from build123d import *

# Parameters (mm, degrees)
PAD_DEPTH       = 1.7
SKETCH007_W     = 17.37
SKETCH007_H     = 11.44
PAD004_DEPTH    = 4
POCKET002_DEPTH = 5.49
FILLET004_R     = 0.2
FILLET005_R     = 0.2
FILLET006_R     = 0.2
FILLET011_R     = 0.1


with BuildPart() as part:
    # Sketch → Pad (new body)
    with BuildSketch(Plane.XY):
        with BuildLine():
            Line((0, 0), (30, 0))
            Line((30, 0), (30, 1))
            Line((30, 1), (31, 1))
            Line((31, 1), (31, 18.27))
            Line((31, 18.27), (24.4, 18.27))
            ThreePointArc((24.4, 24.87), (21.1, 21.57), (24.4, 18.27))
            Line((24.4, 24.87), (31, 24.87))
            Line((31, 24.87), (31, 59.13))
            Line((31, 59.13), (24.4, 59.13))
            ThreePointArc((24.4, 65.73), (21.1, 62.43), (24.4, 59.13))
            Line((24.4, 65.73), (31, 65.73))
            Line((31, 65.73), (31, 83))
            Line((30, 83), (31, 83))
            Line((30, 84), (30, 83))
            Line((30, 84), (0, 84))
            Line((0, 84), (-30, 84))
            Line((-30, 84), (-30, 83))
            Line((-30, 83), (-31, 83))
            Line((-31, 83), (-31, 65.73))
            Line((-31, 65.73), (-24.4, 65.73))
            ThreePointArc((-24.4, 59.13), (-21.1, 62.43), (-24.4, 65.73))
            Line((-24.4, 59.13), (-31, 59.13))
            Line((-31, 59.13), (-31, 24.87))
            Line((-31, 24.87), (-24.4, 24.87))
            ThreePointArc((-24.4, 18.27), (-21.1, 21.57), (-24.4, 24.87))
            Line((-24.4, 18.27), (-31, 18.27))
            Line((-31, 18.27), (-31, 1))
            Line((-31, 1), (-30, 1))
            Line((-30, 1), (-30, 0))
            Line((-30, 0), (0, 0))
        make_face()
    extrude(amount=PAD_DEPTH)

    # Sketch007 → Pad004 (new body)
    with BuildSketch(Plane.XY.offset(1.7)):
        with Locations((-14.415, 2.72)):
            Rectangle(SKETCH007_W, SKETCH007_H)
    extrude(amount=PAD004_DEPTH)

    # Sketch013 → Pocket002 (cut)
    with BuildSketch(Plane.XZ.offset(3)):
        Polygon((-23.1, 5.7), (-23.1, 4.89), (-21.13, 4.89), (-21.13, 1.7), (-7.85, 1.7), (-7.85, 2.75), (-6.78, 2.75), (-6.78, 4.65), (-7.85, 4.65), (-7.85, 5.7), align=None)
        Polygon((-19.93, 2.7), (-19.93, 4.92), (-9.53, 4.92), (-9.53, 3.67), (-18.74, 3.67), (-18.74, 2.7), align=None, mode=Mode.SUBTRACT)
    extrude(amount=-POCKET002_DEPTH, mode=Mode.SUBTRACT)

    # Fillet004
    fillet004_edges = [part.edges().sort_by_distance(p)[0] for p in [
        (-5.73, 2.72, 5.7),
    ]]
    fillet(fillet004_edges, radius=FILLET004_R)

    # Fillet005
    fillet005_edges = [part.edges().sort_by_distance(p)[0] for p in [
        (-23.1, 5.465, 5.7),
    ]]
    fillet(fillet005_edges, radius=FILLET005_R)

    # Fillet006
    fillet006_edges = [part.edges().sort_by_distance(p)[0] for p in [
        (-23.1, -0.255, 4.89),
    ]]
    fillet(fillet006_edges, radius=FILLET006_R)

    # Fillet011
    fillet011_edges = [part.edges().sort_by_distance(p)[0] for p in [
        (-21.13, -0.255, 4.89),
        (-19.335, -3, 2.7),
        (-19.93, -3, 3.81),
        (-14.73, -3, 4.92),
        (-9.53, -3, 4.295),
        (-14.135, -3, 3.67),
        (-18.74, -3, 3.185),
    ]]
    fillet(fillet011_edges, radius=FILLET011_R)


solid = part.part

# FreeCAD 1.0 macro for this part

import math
import FreeCAD as App
import Part
import Sketcher

V = App.Vector
Q = App.Units.Quantity


def edges_at(feature, points):
    """Names of the edges that pass closest to the given points."""
    edges = feature.Shape.Edges
    near = lambda p: min(range(len(edges)), key=lambda i: edges[i].distToShape(Part.Vertex(*p))[0])
    return sorted({f"Edge{near(p) + 1}" for p in points})


def add_polygon(sketch, points):
    """Adds a closed chain of lines whose ends are joined by coincident constraints."""
    first, n = sketch.GeometryCount, len(points)
    for a, b in zip(points, points[1:] + points[:1]):
        sketch.addGeometry(Part.LineSegment(App.Vector(*a, 0), App.Vector(*b, 0)), False)
    for i in range(n):
        sketch.addConstraint(Sketcher.Constraint("Coincident", first + i, 2, first + (i + 1) % n, 1))

doc = App.newDocument("Part")
body = doc.addObject("PartDesign::Body", "Body")

# Sketch on XY plane
sketch1 = doc.addObject("Sketcher::SketchObject", "Sketch")
body.addObject(sketch1)
sketch1.AttachmentSupport = (doc.XY_Plane, [""])
sketch1.MapMode = "FlatFace"
sketch1.addGeometry([
    Part.LineSegment(V(30, 0, 0), V(30, 1, 0)),  # 0
    Part.LineSegment(V(30, 1, 0), V(31, 1, 0)),  # 1
    Part.LineSegment(V(31, 1, 0), V(31, 18.27, 0)),  # 2
    Part.LineSegment(V(31, 18.27, 0), V(24.4, 18.27, 0)),  # 3
    Part.ArcOfCircle(Part.Circle(V(24.4, 21.57, 0), V(0, 0, 1), 3.3), math.radians(90), math.radians(270)),  # 4
    Part.LineSegment(V(24.4, 24.87, 0), V(31, 24.87, 0)),  # 5
    Part.LineSegment(V(31, 24.87, 0), V(31, 59.13, 0)),  # 6
    Part.LineSegment(V(31, 59.13, 0), V(24.4, 59.13, 0)),  # 7
    Part.ArcOfCircle(Part.Circle(V(24.4, 62.43, 0), V(0, 0, 1), 3.3), math.radians(90), math.radians(270)),  # 8
    Part.LineSegment(V(24.4, 65.73, 0), V(31, 65.73, 0)),  # 9
    Part.LineSegment(V(31, 65.73, 0), V(31, 83, 0)),  # 10
    Part.LineSegment(V(31, 83, 0), V(30, 83, 0)),  # 11
    Part.LineSegment(V(30, 83, 0), V(30, 84, 0)),  # 12
    Part.LineSegment(V(30, 84, 0), V(-30, 84, 0)),  # 13
    Part.LineSegment(V(-30, 84, 0), V(-30, 83, 0)),  # 14
    Part.LineSegment(V(-30, 83, 0), V(-31, 83, 0)),  # 15
    Part.LineSegment(V(-31, 83, 0), V(-31, 65.73, 0)),  # 16
    Part.LineSegment(V(-31, 65.73, 0), V(-24.4, 65.73, 0)),  # 17
    Part.ArcOfCircle(Part.Circle(V(-24.4, 62.43, 0), V(0, 0, 1), 3.3), math.radians(-90), math.radians(90)),  # 18
    Part.LineSegment(V(-24.4, 59.13, 0), V(-31, 59.13, 0)),  # 19
    Part.LineSegment(V(-31, 59.13, 0), V(-31, 24.87, 0)),  # 20
    Part.LineSegment(V(-31, 24.87, 0), V(-24.4, 24.87, 0)),  # 21
    Part.ArcOfCircle(Part.Circle(V(-24.4, 21.57, 0), V(0, 0, 1), 3.3), math.radians(-90), math.radians(90)),  # 22
    Part.LineSegment(V(-24.4, 18.27, 0), V(-31, 18.27, 0)),  # 23
    Part.LineSegment(V(-31, 18.27, 0), V(-31, 1, 0)),  # 24
    Part.LineSegment(V(-31, 1, 0), V(-30, 1, 0)),  # 25
    Part.LineSegment(V(-30, 1, 0), V(-30, 0, 0)),  # 26
    Part.LineSegment(V(-30, 0, 0), V(30, 0, 0)),  # 27
], False)
sketch1.addConstraint([
    Sketcher.Constraint("Coincident", 0, 2, 1, 1),
    Sketcher.Constraint("Coincident", 1, 2, 2, 1),
    Sketcher.Constraint("Coincident", 2, 2, 3, 1),
    Sketcher.Constraint("Tangent", 3, 2, 4, 2),
    Sketcher.Constraint("Tangent", 4, 1, 5, 1),
    Sketcher.Constraint("Coincident", 5, 2, 6, 1),
    Sketcher.Constraint("Coincident", 6, 2, 7, 1),
    Sketcher.Constraint("Tangent", 7, 2, 8, 2),
    Sketcher.Constraint("Tangent", 8, 1, 9, 1),
    Sketcher.Constraint("Coincident", 9, 2, 10, 1),
    Sketcher.Constraint("Coincident", 10, 2, 11, 1),
    Sketcher.Constraint("Coincident", 11, 2, 12, 1),
    Sketcher.Constraint("Coincident", 12, 2, 13, 1),
    Sketcher.Constraint("Coincident", 13, 2, 14, 1),
    Sketcher.Constraint("Coincident", 14, 2, 15, 1),
    Sketcher.Constraint("Coincident", 15, 2, 16, 1),
    Sketcher.Constraint("Coincident", 16, 2, 17, 1),
    Sketcher.Constraint("Tangent", 17, 2, 18, 2),
    Sketcher.Constraint("Tangent", 18, 1, 19, 1),
    Sketcher.Constraint("Coincident", 19, 2, 20, 1),
    Sketcher.Constraint("Coincident", 20, 2, 21, 1),
    Sketcher.Constraint("Tangent", 21, 2, 22, 2),
    Sketcher.Constraint("Tangent", 22, 1, 23, 1),
    Sketcher.Constraint("Coincident", 23, 2, 24, 1),
    Sketcher.Constraint("Coincident", 24, 2, 25, 1),
    Sketcher.Constraint("Coincident", 25, 2, 26, 1),
    Sketcher.Constraint("Coincident", 26, 2, 27, 1),
    Sketcher.Constraint("Coincident", 27, 2, 0, 1),
    Sketcher.Constraint("Vertical", 0),
    Sketcher.Constraint("Horizontal", 1),
    Sketcher.Constraint("Vertical", 2),
    Sketcher.Constraint("Horizontal", 3),
    Sketcher.Constraint("Horizontal", 5),
    Sketcher.Constraint("Vertical", 6),
    Sketcher.Constraint("Horizontal", 7),
    Sketcher.Constraint("Horizontal", 9),
    Sketcher.Constraint("Vertical", 10),
    Sketcher.Constraint("Horizontal", 11),
    Sketcher.Constraint("Vertical", 12),
    Sketcher.Constraint("Horizontal", 13),
    Sketcher.Constraint("Vertical", 14),
    Sketcher.Constraint("Horizontal", 15),
    Sketcher.Constraint("Vertical", 16),
    Sketcher.Constraint("Horizontal", 17),
    Sketcher.Constraint("Horizontal", 19),
    Sketcher.Constraint("Vertical", 20),
    Sketcher.Constraint("Horizontal", 21),
    Sketcher.Constraint("Horizontal", 23),
    Sketcher.Constraint("Vertical", 24),
    Sketcher.Constraint("Horizontal", 25),
    Sketcher.Constraint("Vertical", 26),
    Sketcher.Constraint("Horizontal", 27),
    Sketcher.Constraint("Equal", 4, 8),
    Sketcher.Constraint("Equal", 8, 18),
    Sketcher.Constraint("Equal", 18, 22),
    Sketcher.Constraint("Symmetric", 26, 2, 27, 2, -1, 1),
    Sketcher.Constraint("Symmetric", 8, 3, 18, 3, -2),
    Sketcher.Constraint("Symmetric", 4, 3, 22, 3, -2),
    Sketcher.Constraint("Symmetric", 11, 2, 14, 2, -2),
    Sketcher.Constraint("Symmetric", 1, 2, 24, 2, -2),
    Sketcher.Constraint("Vertical", 4, 3, 8, 3),
    Sketcher.Constraint("Vertical", 2, 2, 5, 2),
    Sketcher.Constraint("Vertical", 6, 2, 9, 2),
    Sketcher.Constraint("Vertical", 0, 2, 11, 2),
    Sketcher.Constraint("Vertical", 16, 2, 19, 2),
    Sketcher.Constraint("Vertical", 20, 2, 23, 2),
    Sketcher.Constraint("Equal", 25, 0),
    Sketcher.Constraint("Equal", 2, 10),
    Sketcher.Constraint("Equal", 0, 12),
    Sketcher.Constraint("Radius", 4, Q("3.3 mm")),
    Sketcher.Constraint("DistanceX", 1, 1, 1, 2, Q("1 mm")),
    Sketcher.Constraint("DistanceX", 13, 2, 13, 1, Q("60 mm")),
    Sketcher.Constraint("DistanceX", 3, 2, 3, 1, Q("6.6 mm")),
    Sketcher.Constraint("DistanceY", -1, 1, 10, 2, Q("83 mm")),
    Sketcher.Constraint("DistanceY", 2, 1, 2, 2, Q("17.27 mm")),
])
pad1 = doc.addObject("PartDesign::Pad", "Pad")
body.addObject(pad1)
pad1.Profile = sketch1
pad1.Length = 1.7

# Sketch on XY plane
sketch2 = doc.addObject("Sketcher::SketchObject", "Sketch001")
body.addObject(sketch2)
sketch2.AttachmentSupport = (doc.XY_Plane, [""])
sketch2.MapMode = "FlatFace"
sketch2.AttachmentOffset = App.Placement(V(0, 0, 1.7), App.Rotation())
add_polygon(sketch2, [(-23.1, 8.44), (-23.1, -3), (-5.73, -3), (-5.73, 8.44)])  # lines 0-3
sketch2.addConstraint([
    Sketcher.Constraint("Vertical", 0),
    Sketcher.Constraint("Horizontal", 1),
    Sketcher.Constraint("Vertical", 2),
    Sketcher.Constraint("Horizontal", 3),
    Sketcher.Constraint("DistanceY", 0, 2, -1, 1, Q("3 mm")),
    Sketcher.Constraint("DistanceX", 1, 1, 1, 2, Q("17.37 mm")),
    Sketcher.Constraint("DistanceY", 0, 2, 0, 1, Q("11.44 mm")),
    Sketcher.Constraint("DistanceX", 0, 2, -1, 1, Q("23.1 mm")),
])
pad2 = doc.addObject("PartDesign::Pad", "Pad001")
body.addObject(pad2)
pad2.Profile = sketch2
pad2.Length = 4

# Sketch on XZ plane
sketch3 = doc.addObject("Sketcher::SketchObject", "Sketch002")
body.addObject(sketch3)
sketch3.AttachmentSupport = (doc.XZ_Plane, [""])
sketch3.MapMode = "FlatFace"
sketch3.AttachmentOffset = App.Placement(V(0, 0, 3), App.Rotation())
add_polygon(sketch3, [(-23.1, 5.7), (-23.1, 4.89), (-21.13, 4.89), (-21.13, 1.7), (-7.85, 1.7), (-7.85, 2.75), (-6.78, 2.75), (-6.78, 4.65), (-7.85, 4.65), (-7.85, 5.7)])  # lines 0-9
add_polygon(sketch3, [(-18.74, 2.7), (-19.93, 2.7), (-19.93, 4.92), (-9.53, 4.92), (-9.53, 3.67), (-18.74, 3.67)])  # lines 10-15
sketch3.addConstraint([
    Sketcher.Constraint("Vertical", 0),
    Sketcher.Constraint("Horizontal", 1),
    Sketcher.Constraint("Vertical", 2),
    Sketcher.Constraint("Horizontal", 3),
    Sketcher.Constraint("Vertical", 4),
    Sketcher.Constraint("Horizontal", 5),
    Sketcher.Constraint("Vertical", 6),
    Sketcher.Constraint("Horizontal", 7),
    Sketcher.Constraint("Vertical", 8),
    Sketcher.Constraint("Horizontal", 9),
    Sketcher.Constraint("Horizontal", 10),
    Sketcher.Constraint("Vertical", 11),
    Sketcher.Constraint("Horizontal", 12),
    Sketcher.Constraint("Vertical", 13),
    Sketcher.Constraint("Horizontal", 14),
    Sketcher.Constraint("Vertical", 15),
    Sketcher.Constraint("Vertical", 4, 2, 7, 2),
    Sketcher.Constraint("Equal", 4, 8),
    Sketcher.Constraint("DistanceX", 12, 1, 12, 2, Q("10.4 mm")),
    Sketcher.Constraint("DistanceY", 6, 1, 6, 2, Q("1.9 mm")),
    Sketcher.Constraint("DistanceY", 3, 2, 8, 2, Q("4 mm")),
    Sketcher.Constraint("DistanceY", 2, 2, 10, 2, Q("1 mm")),
    Sketcher.Constraint("DistanceX", 1, 1, 1, 2, Q("1.97 mm")),
    Sketcher.Constraint("DistanceX", 3, 1, 3, 2, Q("13.28 mm")),
    Sketcher.Constraint("DistanceX", 5, 1, 5, 2, Q("1.07 mm")),
    Sketcher.Constraint("DistanceX", 10, 2, 10, 1, Q("1.19 mm")),
    Sketcher.Constraint("DistanceY", 0, 2, 0, 1, Q("0.81 mm")),
    Sketcher.Constraint("DistanceY", 11, 1, 11, 2, Q("2.22 mm")),
    Sketcher.Constraint("DistanceY", 13, 2, 13, 1, Q("1.25 mm")),
    Sketcher.Constraint("DistanceX", 0, 2, -1, 1, Q("23.1 mm")),
    Sketcher.Constraint("DistanceY", -1, 1, 2, 2, Q("1.7 mm")),
    Sketcher.Constraint("DistanceX", 2, 2, 10, 2, Q("1.2 mm")),
])
pocket1 = doc.addObject("PartDesign::Pocket", "Pocket")
body.addObject(pocket1)
pocket1.Profile = sketch3
pocket1.Length = 5.49
doc.recompute()

fillet = doc.addObject("PartDesign::Fillet", "Fillet")
body.addObject(fillet)
fillet.Base = (pocket1, edges_at(pocket1, [(-5.73, 2.72, 5.7)]))
fillet.Radius = 0.2
doc.recompute()

fillet2 = doc.addObject("PartDesign::Fillet", "Fillet001")
body.addObject(fillet2)
fillet2.Base = (fillet, edges_at(fillet, [(-23.1, 5.465, 5.7)]))
fillet2.Radius = 0.2
doc.recompute()

fillet3 = doc.addObject("PartDesign::Fillet", "Fillet002")
body.addObject(fillet3)
fillet3.Base = (fillet2, edges_at(fillet2, [(-23.1, -0.255, 4.89)]))
fillet3.Radius = 0.2
doc.recompute()

fillet4 = doc.addObject("PartDesign::Fillet", "Fillet003")
body.addObject(fillet4)
fillet4.Base = (fillet3, edges_at(fillet3, [
    (-21.13, -0.255, 4.89),
    (-19.335, -3, 2.7),
    (-19.93, -3, 3.81),
    (-14.73, -3, 4.92),
    (-9.53, -3, 4.295),
    (-14.135, -3, 3.67),
    (-18.74, -3, 3.185),
]))
fillet4.Radius = 0.1

doc.recompute()
